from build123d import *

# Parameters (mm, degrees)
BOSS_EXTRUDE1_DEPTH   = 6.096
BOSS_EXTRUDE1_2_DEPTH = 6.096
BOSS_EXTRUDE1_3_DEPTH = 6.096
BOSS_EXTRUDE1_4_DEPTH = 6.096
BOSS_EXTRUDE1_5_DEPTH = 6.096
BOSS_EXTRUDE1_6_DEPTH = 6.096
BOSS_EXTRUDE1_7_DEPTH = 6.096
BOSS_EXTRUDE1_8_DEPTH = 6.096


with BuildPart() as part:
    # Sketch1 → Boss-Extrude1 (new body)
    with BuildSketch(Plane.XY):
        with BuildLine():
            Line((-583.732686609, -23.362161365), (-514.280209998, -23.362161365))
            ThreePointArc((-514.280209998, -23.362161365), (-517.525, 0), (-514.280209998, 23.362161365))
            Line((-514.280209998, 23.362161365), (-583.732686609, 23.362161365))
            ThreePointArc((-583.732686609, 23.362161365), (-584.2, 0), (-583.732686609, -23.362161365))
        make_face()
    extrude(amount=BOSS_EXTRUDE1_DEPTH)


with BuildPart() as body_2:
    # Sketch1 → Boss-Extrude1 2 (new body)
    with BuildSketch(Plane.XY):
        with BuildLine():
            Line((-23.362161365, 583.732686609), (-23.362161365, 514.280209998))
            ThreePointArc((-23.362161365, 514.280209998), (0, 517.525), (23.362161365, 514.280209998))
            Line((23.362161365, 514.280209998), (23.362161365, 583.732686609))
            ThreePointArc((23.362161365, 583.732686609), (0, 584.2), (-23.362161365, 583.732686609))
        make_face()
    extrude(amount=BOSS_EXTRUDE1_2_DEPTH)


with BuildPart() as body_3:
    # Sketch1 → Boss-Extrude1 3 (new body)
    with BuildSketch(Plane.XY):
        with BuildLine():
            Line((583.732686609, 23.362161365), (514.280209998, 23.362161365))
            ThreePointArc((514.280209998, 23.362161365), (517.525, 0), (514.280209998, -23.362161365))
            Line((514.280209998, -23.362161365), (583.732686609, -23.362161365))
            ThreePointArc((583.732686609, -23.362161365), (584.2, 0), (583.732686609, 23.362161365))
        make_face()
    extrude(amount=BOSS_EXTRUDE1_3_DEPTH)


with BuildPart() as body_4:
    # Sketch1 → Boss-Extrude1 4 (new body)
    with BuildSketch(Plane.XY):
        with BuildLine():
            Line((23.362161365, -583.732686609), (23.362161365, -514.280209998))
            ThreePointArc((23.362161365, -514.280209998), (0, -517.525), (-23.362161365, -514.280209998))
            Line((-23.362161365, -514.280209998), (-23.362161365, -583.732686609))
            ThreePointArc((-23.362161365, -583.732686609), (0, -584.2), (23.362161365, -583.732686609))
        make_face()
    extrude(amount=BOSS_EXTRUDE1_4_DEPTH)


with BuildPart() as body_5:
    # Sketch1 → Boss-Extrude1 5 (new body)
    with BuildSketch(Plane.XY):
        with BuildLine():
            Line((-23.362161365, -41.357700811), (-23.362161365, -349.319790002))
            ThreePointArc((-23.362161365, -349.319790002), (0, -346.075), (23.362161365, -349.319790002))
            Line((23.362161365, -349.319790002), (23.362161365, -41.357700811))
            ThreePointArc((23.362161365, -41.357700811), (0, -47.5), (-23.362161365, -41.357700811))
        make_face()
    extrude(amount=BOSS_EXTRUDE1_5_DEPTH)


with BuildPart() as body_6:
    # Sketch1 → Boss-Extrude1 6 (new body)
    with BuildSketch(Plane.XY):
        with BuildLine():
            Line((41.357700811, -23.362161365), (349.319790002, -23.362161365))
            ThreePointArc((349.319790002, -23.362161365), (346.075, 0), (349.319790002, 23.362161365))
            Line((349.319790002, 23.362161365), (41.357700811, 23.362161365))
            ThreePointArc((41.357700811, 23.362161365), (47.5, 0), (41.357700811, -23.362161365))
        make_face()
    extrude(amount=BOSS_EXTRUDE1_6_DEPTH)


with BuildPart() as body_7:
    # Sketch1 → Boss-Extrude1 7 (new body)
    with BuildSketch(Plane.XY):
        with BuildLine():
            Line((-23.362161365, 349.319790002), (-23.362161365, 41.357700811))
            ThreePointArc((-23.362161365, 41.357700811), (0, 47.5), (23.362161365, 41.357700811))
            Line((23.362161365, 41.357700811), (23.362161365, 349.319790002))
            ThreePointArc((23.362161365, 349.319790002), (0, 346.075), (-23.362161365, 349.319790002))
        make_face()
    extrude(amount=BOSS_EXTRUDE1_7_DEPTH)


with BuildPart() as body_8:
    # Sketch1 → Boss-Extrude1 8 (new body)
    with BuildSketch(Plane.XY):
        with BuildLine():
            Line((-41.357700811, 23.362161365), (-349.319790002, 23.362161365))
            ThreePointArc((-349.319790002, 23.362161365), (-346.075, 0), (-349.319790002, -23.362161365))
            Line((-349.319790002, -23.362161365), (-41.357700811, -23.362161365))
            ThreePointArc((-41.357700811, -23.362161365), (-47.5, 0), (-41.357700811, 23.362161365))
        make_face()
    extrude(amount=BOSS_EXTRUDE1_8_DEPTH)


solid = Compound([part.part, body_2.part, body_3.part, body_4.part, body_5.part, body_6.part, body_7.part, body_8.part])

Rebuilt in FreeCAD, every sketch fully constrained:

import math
import FreeCAD as App
import Part
import Sketcher
Q = App.Units.Quantity

doc = App.newDocument("Part")
params = doc.addObject("Spreadsheet::Sheet", "Params")
for row, (alias, value) in enumerate([
    ("sketch1_radius", "23 in"),
    ("sketch1_radius2", "3.375 in"),
    ("pad1_length", "0.24 in"),
    ("sketch2_radius", "23 in"),
    ("sketch2_radius2", "3.375 in"),
    ("pad2_length", "0.24 in"),
    ("sketch3_radius", "23 in"),
    ("sketch3_radius2", "3.375 in"),
    ("pad3_length", "0.24 in"),
    ("sketch4_radius", "23 in"),
    ("sketch4_radius2", "3.375 in"),
    ("pad4_length", "0.24 in"),
    ("sketch5_radius", "3.375 in"),
    ("pad5_length", "0.24 in"),
    ("sketch6_radius", "3.375 in"),
    ("pad6_length", "0.24 in"),
    ("sketch7_radius", "3.375 in"),
    ("pad7_length", "0.24 in"),
    ("sketch8_radius", "3.375 in"),
    ("pad8_length", "0.24 in"),
], start=1):
    params.set(f"A{row}", alias)
    params.set(f"B{row}", "=" + value)
    params.setAlias(f"B{row}", alias)

body = doc.addObject("PartDesign::Body", "Body")

# Sketch on XY plane
sketch1 = body.newObject("Sketcher::SketchObject", "Sketch")
sketch1.AttachmentSupport = (doc.getObject("XY_Plane"), [""])
sketch1.MapMode = "FlatFace"
sketch1.addGeometry([
    Part.LineSegment(App.Vector(-584, -23, 0), App.Vector(-514, -23, 0)),
    Part.ArcOfCircle(Part.Circle(App.Vector(-432, 0, 0), App.Vector(0, 0, 1), 86), math.radians(164), math.radians(196)),
    Part.LineSegment(App.Vector(-514, 23, 0), App.Vector(-584, 23, 0)),
    Part.ArcOfCircle(Part.Circle(App.Vector(0, 0, 0), App.Vector(0, 0, 1), 584), math.radians(177.71), math.radians(182.29)),
], False)
sketch1.addConstraint([
    Sketcher.Constraint("Coincident", 0, 2, 1, 2),
    Sketcher.Constraint("Coincident", 1, 1, 2, 1),
    Sketcher.Constraint("Coincident", 2, 2, 3, 1),
    Sketcher.Constraint("Coincident", 3, 2, 0, 1),
    Sketcher.Constraint("Horizontal", 0),
    Sketcher.Constraint("Horizontal", 2),
    Sketcher.Constraint("Coincident", 3, 3, -1, 1),
    Sketcher.Constraint("Symmetric", 0, 2, 1, 1, -1),
    Sketcher.Constraint("Radius", 3, Q("23 in")),
    Sketcher.Constraint("DistanceX", 1, 3, -1, 1, Q("17 in")),
    Sketcher.Constraint("Radius", 1, Q("3.375 in")),
    Sketcher.Constraint("DistanceX", 0, 1, 0, 2, 69.452477),
])
sketch1.setExpression("Constraints[8]", "Params.sketch1_radius")
sketch1.setExpression("Constraints[10]", "Params.sketch1_radius2")
pad1 = body.newObject("PartDesign::Pad", "Pad")
pad1.Profile = sketch1
pad1.setExpression("Length", "Params.pad1_length")
body2 = doc.addObject("PartDesign::Body", "Body001")

# Sketch on XY plane
sketch2 = body2.newObject("Sketcher::SketchObject", "Sketch001")
sketch2.AttachmentSupport = (doc.getObject("XY_Plane001"), [""])
sketch2.MapMode = "FlatFace"
sketch2.addGeometry([
    Part.LineSegment(App.Vector(-23, 584, 0), App.Vector(-23, 514, 0)),
    Part.ArcOfCircle(Part.Circle(App.Vector(0, 432, 0), App.Vector(0, 0, 1), 86), math.radians(74), math.radians(106)),
    Part.LineSegment(App.Vector(23, 514, 0), App.Vector(23, 584, 0)),
    Part.ArcOfCircle(Part.Circle(App.Vector(0, 0, 0), App.Vector(0, 0, 1), 584), math.radians(87.71), math.radians(92.29)),
], False)
sketch2.addConstraint([
    Sketcher.Constraint("Coincident", 0, 2, 1, 2),
    Sketcher.Constraint("Coincident", 1, 1, 2, 1),
    Sketcher.Constraint("Coincident", 2, 2, 3, 1),
    Sketcher.Constraint("Coincident", 3, 2, 0, 1),
    Sketcher.Constraint("Vertical", 0),
    Sketcher.Constraint("Vertical", 2),
    Sketcher.Constraint("Coincident", 3, 3, -1, 1),
    Sketcher.Constraint("Symmetric", 0, 2, 1, 1, -2),
    Sketcher.Constraint("Radius", 3, Q("23 in")),
    Sketcher.Constraint("DistanceY", -1, 1, 1, 3, Q("17 in")),
    Sketcher.Constraint("Radius", 1, Q("3.375 in")),
    Sketcher.Constraint("DistanceY", 0, 2, 0, 1, 69.452477),
])
sketch2.setExpression("Constraints[8]", "Params.sketch2_radius")
sketch2.setExpression("Constraints[10]", "Params.sketch2_radius2")
pad2 = body2.newObject("PartDesign::Pad", "Pad001")
pad2.Profile = sketch2
pad2.setExpression("Length", "Params.pad2_length")
body3 = doc.addObject("PartDesign::Body", "Body002")

# Sketch on XY plane
sketch3 = body3.newObject("Sketcher::SketchObject", "Sketch002")
sketch3.AttachmentSupport = (doc.getObject("XY_Plane002"), [""])
sketch3.MapMode = "FlatFace"
sketch3.addGeometry([
    Part.LineSegment(App.Vector(584, 23, 0), App.Vector(514, 23, 0)),
    Part.ArcOfCircle(Part.Circle(App.Vector(432, 0, 0), App.Vector(0, 0, 1), 86), math.radians(-16), math.radians(16)),
    Part.LineSegment(App.Vector(514, -23, 0), App.Vector(584, -23, 0)),
    Part.ArcOfCircle(Part.Circle(App.Vector(0, 0, 0), App.Vector(0, 0, 1), 584), math.radians(-2.29), math.radians(2.29)),
], False)
sketch3.addConstraint([
    Sketcher.Constraint("Coincident", 0, 2, 1, 2),
    Sketcher.Constraint("Coincident", 1, 1, 2, 1),
    Sketcher.Constraint("Coincident", 2, 2, 3, 1),
    Sketcher.Constraint("Coincident", 3, 2, 0, 1),
    Sketcher.Constraint("Horizontal", 0),
    Sketcher.Constraint("Horizontal", 2),
    Sketcher.Constraint("Coincident", 3, 3, -1, 1),
    Sketcher.Constraint("Symmetric", 0, 2, 1, 1, -1),
    Sketcher.Constraint("Radius", 3, Q("23 in")),
    Sketcher.Constraint("DistanceX", -1, 1, 1, 3, Q("17 in")),
    Sketcher.Constraint("Radius", 1, Q("3.375 in")),
    Sketcher.Constraint("DistanceX", 0, 2, 0, 1, 69.452477),
])
sketch3.setExpression("Constraints[8]", "Params.sketch3_radius")
sketch3.setExpression("Constraints[10]", "Params.sketch3_radius2")
pad3 = body3.newObject("PartDesign::Pad", "Pad002")
pad3.Profile = sketch3
pad3.setExpression("Length", "Params.pad3_length")
body4 = doc.addObject("PartDesign::Body", "Body003")

# Sketch on XY plane
sketch4 = body4.newObject("Sketcher::SketchObject", "Sketch003")
sketch4.AttachmentSupport = (doc.getObject("XY_Plane003"), [""])
sketch4.MapMode = "FlatFace"
sketch4.addGeometry([
    Part.LineSegment(App.Vector(23, -584, 0), App.Vector(23, -514, 0)),
    Part.ArcOfCircle(Part.Circle(App.Vector(0, -432, 0), App.Vector(0, 0, 1), 86), math.radians(-106), math.radians(-74)),
    Part.LineSegment(App.Vector(-23, -514, 0), App.Vector(-23, -584, 0)),
    Part.ArcOfCircle(Part.Circle(App.Vector(0, 0, 0), App.Vector(0, 0, 1), 584), math.radians(-92.29), math.radians(-87.71)),
], False)
sketch4.addConstraint([
    Sketcher.Constraint("Coincident", 0, 2, 1, 2),
    Sketcher.Constraint("Coincident", 1, 1, 2, 1),
    Sketcher.Constraint("Coincident", 2, 2, 3, 1),
    Sketcher.Constraint("Coincident", 3, 2, 0, 1),
    Sketcher.Constraint("Vertical", 0),
    Sketcher.Constraint("Vertical", 2),
    Sketcher.Constraint("Coincident", 3, 3, -1, 1),
    Sketcher.Constraint("Symmetric", 0, 2, 1, 1, -2),
    Sketcher.Constraint("Radius", 3, Q("23 in")),
    Sketcher.Constraint("DistanceY", 1, 3, -1, 1, Q("17 in")),
    Sketcher.Constraint("Radius", 1, Q("3.375 in")),
    Sketcher.Constraint("DistanceY", 0, 1, 0, 2, 69.452477),
])
sketch4.setExpression("Constraints[8]", "Params.sketch4_radius")
sketch4.setExpression("Constraints[10]", "Params.sketch4_radius2")
pad4 = body4.newObject("PartDesign::Pad", "Pad003")
pad4.Profile = sketch4
pad4.setExpression("Length", "Params.pad4_length")
body5 = doc.addObject("PartDesign::Body", "Body004")

# Sketch on XY plane
sketch5 = body5.newObject("Sketcher::SketchObject", "Sketch004")
sketch5.AttachmentSupport = (doc.getObject("XY_Plane004"), [""])
sketch5.MapMode = "FlatFace"
sketch5.addGeometry([
    Part.LineSegment(App.Vector(-23, -41, 0), App.Vector(-23, -349, 0)),
    Part.ArcOfCircle(Part.Circle(App.Vector(0, -432, 0), App.Vector(0, 0, 1), 86), math.radians(74), math.radians(106)),
    Part.LineSegment(App.Vector(23, -349, 0), App.Vector(23, -41, 0)),
    Part.ArcOfCircle(Part.Circle(App.Vector(0, 0, 0), App.Vector(0, 0, 1), 48), math.radians(-119), math.radians(-61)),
], False)
sketch5.addConstraint([
    Sketcher.Constraint("Coincident", 0, 2, 1, 2),
    Sketcher.Constraint("Coincident", 1, 1, 2, 1),
    Sketcher.Constraint("Coincident", 2, 2, 3, 2),
    Sketcher.Constraint("Coincident", 3, 1, 0, 1),
    Sketcher.Constraint("Vertical", 0),
    Sketcher.Constraint("Vertical", 2),
    Sketcher.Constraint("Coincident", 3, 3, -1, 1),
    Sketcher.Constraint("Symmetric", 0, 2, 1, 1, -2),
    Sketcher.Constraint("DistanceY", 1, 3, -1, 1, Q("17 in")),
    Sketcher.Constraint("Radius", 1, Q("3.375 in")),
    Sketcher.Constraint("Radius", 3, 47.5),
    Sketcher.Constraint("DistanceY", 0, 2, 0, 1, 307.962089),
])
sketch5.setExpression("Constraints[9]", "Params.sketch5_radius")
pad5 = body5.newObject("PartDesign::Pad", "Pad004")
pad5.Profile = sketch5
pad5.setExpression("Length", "Params.pad5_length")
body6 = doc.addObject("PartDesign::Body", "Body005")

# Sketch on XY plane
sketch6 = body6.newObject("Sketcher::SketchObject", "Sketch005")
sketch6.AttachmentSupport = (doc.getObject("XY_Plane005"), [""])
sketch6.MapMode = "FlatFace"
sketch6.addGeometry([
    Part.LineSegment(App.Vector(41, -23, 0), App.Vector(349, -23, 0)),
    Part.ArcOfCircle(Part.Circle(App.Vector(432, 0, 0), App.Vector(0, 0, 1), 86), math.radians(164), math.radians(196)),
    Part.LineSegment(App.Vector(349, 23, 0), App.Vector(41, 23, 0)),
    Part.ArcOfCircle(Part.Circle(App.Vector(0, 0, 0), App.Vector(0, 0, 1), 48), math.radians(-29), math.radians(29)),
], False)
sketch6.addConstraint([
    Sketcher.Constraint("Coincident", 0, 2, 1, 2),
    Sketcher.Constraint("Coincident", 1, 1, 2, 1),
    Sketcher.Constraint("Coincident", 2, 2, 3, 2),
    Sketcher.Constraint("Coincident", 3, 1, 0, 1),
    Sketcher.Constraint("Horizontal", 0),
    Sketcher.Constraint("Horizontal", 2),
    Sketcher.Constraint("Coincident", 3, 3, -1, 1),
    Sketcher.Constraint("Symmetric", 0, 2, 1, 1, -1),
    Sketcher.Constraint("DistanceX", -1, 1, 1, 3, Q("17 in")),
    Sketcher.Constraint("Radius", 1, Q("3.375 in")),
    Sketcher.Constraint("Radius", 3, 47.5),
    Sketcher.Constraint("DistanceX", 0, 1, 0, 2, 307.962089),
])
sketch6.setExpression("Constraints[9]", "Params.sketch6_radius")
pad6 = body6.newObject("PartDesign::Pad", "Pad005")
pad6.Profile = sketch6
pad6.setExpression("Length", "Params.pad6_length")
body7 = doc.addObject("PartDesign::Body", "Body006")

# Sketch on XY plane
sketch7 = body7.newObject("Sketcher::SketchObject", "Sketch006")
sketch7.AttachmentSupport = (doc.getObject("XY_Plane006"), [""])
sketch7.MapMode = "FlatFace"
sketch7.addGeometry([
    Part.LineSegment(App.Vector(-23, 349, 0), App.Vector(-23, 41, 0)),
    Part.ArcOfCircle(Part.Circle(App.Vector(0, 0, 0), App.Vector(0, 0, 1), 48), math.radians(61), math.radians(119)),
    Part.LineSegment(App.Vector(23, 41, 0), App.Vector(23, 349, 0)),
    Part.ArcOfCircle(Part.Circle(App.Vector(0, 432, 0), App.Vector(0, 0, 1), 86), math.radians(-106), math.radians(-74)),
], False)
sketch7.addConstraint([
    Sketcher.Constraint("Coincident", 0, 2, 1, 2),
    Sketcher.Constraint("Coincident", 1, 1, 2, 1),
    Sketcher.Constraint("Coincident", 2, 2, 3, 2),
    Sketcher.Constraint("Coincident", 3, 1, 0, 1),
    Sketcher.Constraint("Vertical", 0),
    Sketcher.Constraint("Vertical", 2),
    Sketcher.Constraint("Coincident", 1, 3, -1, 1),
    Sketcher.Constraint("Symmetric", 2, 2, 3, 1, -2),
    Sketcher.Constraint("DistanceY", -1, 1, 3, 3, Q("17 in")),
    Sketcher.Constraint("Radius", 3, Q("3.375 in")),
    Sketcher.Constraint("Radius", 1, 47.5),
    Sketcher.Constraint("DistanceY", 0, 2, 0, 1, 307.962089),
])
sketch7.setExpression("Constraints[9]", "Params.sketch7_radius")
pad7 = body7.newObject("PartDesign::Pad", "Pad006")
pad7.Profile = sketch7
pad7.setExpression("Length", "Params.pad7_length")
body8 = doc.addObject("PartDesign::Body", "Body007")

# Sketch on XY plane
sketch8 = body8.newObject("Sketcher::SketchObject", "Sketch007")
sketch8.AttachmentSupport = (doc.getObject("XY_Plane007"), [""])
sketch8.MapMode = "FlatFace"
sketch8.addGeometry([
    Part.LineSegment(App.Vector(-41, 23, 0), App.Vector(-349, 23, 0)),
    Part.ArcOfCircle(Part.Circle(App.Vector(-432, 0, 0), App.Vector(0, 0, 1), 86), math.radians(-16), math.radians(16)),
    Part.LineSegment(App.Vector(-349, -23, 0), App.Vector(-41, -23, 0)),
    Part.ArcOfCircle(Part.Circle(App.Vector(0, 0, 0), App.Vector(0, 0, 1), 48), math.radians(151), math.radians(209)),
], False)
sketch8.addConstraint([
    Sketcher.Constraint("Coincident", 0, 2, 1, 2),
    Sketcher.Constraint("Coincident", 1, 1, 2, 1),
    Sketcher.Constraint("Coincident", 2, 2, 3, 2),
    Sketcher.Constraint("Coincident", 3, 1, 0, 1),
    Sketcher.Constraint("Horizontal", 0),
    Sketcher.Constraint("Horizontal", 2),
    Sketcher.Constraint("Coincident", 3, 3, -1, 1),
    Sketcher.Constraint("Symmetric", 0, 2, 1, 1, -1),
    Sketcher.Constraint("DistanceX", 1, 3, -1, 1, Q("17 in")),
    Sketcher.Constraint("Radius", 1, Q("3.375 in")),
    Sketcher.Constraint("Radius", 3, 47.5),
    Sketcher.Constraint("DistanceX", 0, 2, 0, 1, 307.962089),
])
sketch8.setExpression("Constraints[9]", "Params.sketch8_radius")
pad8 = body8.newObject("PartDesign::Pad", "Pad007")
pad8.Profile = sketch8
pad8.setExpression("Length", "Params.pad8_length")

doc.recompute()
